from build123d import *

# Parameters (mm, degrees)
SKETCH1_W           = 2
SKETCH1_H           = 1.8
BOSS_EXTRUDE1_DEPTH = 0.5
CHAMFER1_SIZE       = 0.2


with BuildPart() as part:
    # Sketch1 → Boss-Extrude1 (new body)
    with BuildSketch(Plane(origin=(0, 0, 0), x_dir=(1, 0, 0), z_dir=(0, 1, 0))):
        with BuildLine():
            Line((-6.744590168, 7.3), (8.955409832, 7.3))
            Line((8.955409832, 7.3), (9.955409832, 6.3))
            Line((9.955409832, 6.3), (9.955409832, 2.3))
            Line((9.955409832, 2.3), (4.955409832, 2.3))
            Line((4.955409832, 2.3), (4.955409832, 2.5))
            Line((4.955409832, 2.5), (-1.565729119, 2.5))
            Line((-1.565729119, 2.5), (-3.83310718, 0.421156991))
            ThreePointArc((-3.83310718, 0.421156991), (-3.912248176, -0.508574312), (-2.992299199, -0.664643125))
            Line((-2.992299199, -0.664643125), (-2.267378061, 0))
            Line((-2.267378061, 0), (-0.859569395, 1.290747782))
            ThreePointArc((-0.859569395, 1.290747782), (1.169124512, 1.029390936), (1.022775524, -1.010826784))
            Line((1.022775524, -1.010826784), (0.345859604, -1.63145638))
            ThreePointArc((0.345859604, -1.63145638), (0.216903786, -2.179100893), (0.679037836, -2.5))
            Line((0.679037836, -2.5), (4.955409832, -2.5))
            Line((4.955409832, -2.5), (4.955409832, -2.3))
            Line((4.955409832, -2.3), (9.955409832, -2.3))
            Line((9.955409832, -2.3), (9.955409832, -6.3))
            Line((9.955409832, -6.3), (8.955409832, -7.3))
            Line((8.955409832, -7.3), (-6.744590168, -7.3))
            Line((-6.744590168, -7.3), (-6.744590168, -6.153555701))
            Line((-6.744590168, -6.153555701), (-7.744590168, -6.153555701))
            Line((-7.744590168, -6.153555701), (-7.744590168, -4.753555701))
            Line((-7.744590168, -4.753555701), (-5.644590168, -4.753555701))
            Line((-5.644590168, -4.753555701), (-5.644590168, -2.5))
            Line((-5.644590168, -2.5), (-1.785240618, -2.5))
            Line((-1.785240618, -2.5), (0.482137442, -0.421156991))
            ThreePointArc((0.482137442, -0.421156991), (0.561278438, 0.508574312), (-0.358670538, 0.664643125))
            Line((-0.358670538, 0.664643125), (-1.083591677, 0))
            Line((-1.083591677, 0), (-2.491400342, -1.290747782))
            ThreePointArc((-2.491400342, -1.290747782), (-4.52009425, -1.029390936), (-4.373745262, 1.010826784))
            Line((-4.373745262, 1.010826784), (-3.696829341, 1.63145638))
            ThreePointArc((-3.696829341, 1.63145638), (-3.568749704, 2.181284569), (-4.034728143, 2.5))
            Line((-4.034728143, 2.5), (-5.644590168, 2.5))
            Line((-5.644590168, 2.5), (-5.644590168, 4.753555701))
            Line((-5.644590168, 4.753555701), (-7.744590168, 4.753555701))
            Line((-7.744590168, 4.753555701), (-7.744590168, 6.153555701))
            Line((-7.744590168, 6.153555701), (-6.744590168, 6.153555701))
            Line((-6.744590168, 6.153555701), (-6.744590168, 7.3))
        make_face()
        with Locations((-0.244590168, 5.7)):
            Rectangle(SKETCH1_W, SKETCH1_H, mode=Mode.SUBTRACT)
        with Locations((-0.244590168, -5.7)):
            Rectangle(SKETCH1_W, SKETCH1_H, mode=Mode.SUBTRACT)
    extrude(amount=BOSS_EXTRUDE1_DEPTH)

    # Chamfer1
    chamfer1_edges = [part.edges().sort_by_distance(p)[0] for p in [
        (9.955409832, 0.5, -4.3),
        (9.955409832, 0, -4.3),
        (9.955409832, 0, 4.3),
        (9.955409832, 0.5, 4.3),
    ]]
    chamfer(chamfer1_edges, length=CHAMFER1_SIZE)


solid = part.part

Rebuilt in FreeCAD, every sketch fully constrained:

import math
import FreeCAD as App
import Part
import Sketcher
from FreeCAD import Vector
Q = App.Units.Quantity


def edges_at(feature, points):
    """Names of the edges that pass closest to the given points."""
    edges = feature.Shape.Edges
    near = lambda p: min(range(len(edges)), key=lambda i: edges[i].distToShape(Part.Vertex(*p))[0])
    return sorted({f"Edge{near(p) + 1}" for p in points})


def add_polygon(sketch, points):
    """Adds a closed chain of lines whose ends are joined by coincident constraints."""
    first, n = sketch.GeometryCount, len(points)
    for a, b in zip(points, points[1:] + points[:1]):
        sketch.addGeometry(Part.LineSegment(App.Vector(*a, 0), App.Vector(*b, 0)), False)
    for i in range(n):
        sketch.addConstraint(Sketcher.Constraint("Coincident", first + i, 2, first + (i + 1) % n, 1))

doc = App.newDocument("Part")
body = doc.addObject("PartDesign::Body", "Body")

# Sketch on XZ plane
sketch1 = body.newObject("Sketcher::SketchObject", "Sketch")
sketch1.AttachmentSupport = (doc.getObject("XZ_Plane"), [""])
sketch1.MapMode = "FlatFace"
sketch1.addGeometry(Part.LineSegment(Vector(8.96, -7.3, 0), Vector(-6.74, -7.3, 0)), False)  # 0
sketch1.addGeometry(Part.LineSegment(Vector(-6.74, -7.3, 0), Vector(-6.74, -6.15, 0)), False)  # 1
sketch1.addGeometry(Part.LineSegment(Vector(-6.74, -6.15, 0), Vector(-7.74, -6.15, 0)), False)  # 2
sketch1.addGeometry(Part.LineSegment(Vector(-7.74, -6.15, 0), Vector(-7.74, -4.75, 0)), False)  # 3
sketch1.addGeometry(Part.LineSegment(Vector(-7.74, -4.75, 0), Vector(-5.64, -4.75, 0)), False)  # 4
sketch1.addGeometry(Part.LineSegment(Vector(-5.64, -4.75, 0), Vector(-5.64, -2.5, 0)), False)  # 5
sketch1.addGeometry(Part.LineSegment(Vector(-5.64, -2.5, 0), Vector(-4.03, -2.5, 0)), False)  # 6
sketch1.addGeometry(Part.ArcOfCircle(Part.Circle(Vector(-4.03, -2, 0), Vector(0, 0, 1), 0.5), math.radians(-90), math.radians(47)), False)  # 7
sketch1.addGeometry(Part.LineSegment(Vector(-3.7, -1.63, 0), Vector(-4.37, -1.01, 0)), False)  # 8
sketch1.addGeometry(Part.ArcOfCircle(Part.Circle(Vector(-3.37, 0.09, 0), Vector(0, 0, 1), 1.49), math.radians(54), math.radians(227)), False)  # 9
sketch1.addGeometry(Part.LineSegment(Vector(-2.49, 1.29, 0), Vector(-1.08, 0, 0)), False)  # 10
sketch1.addGeometry(Part.LineSegment(Vector(-1.08, 0, 0), Vector(-0.36, -0.66, 0)), False)  # 11
sketch1.addGeometry(Part.ArcOfCircle(Part.Circle(Vector(0.02, -0.09, 0), Vector(0, 0, 1), 0.69), math.radians(-123), math.radians(47)), False)  # 12
sketch1.addGeometry(Part.LineSegment(Vector(0.48, 0.42, 0), Vector(-1.79, 2.5, 0)), False)  # 13
sketch1.addGeometry(Part.LineSegment(Vector(-1.79, 2.5, 0), Vector(-5.64, 2.5, 0)), False)  # 14
sketch1.addGeometry(Part.LineSegment(Vector(-5.64, 2.5, 0), Vector(-5.64, 4.75, 0)), False)  # 15
sketch1.addGeometry(Part.LineSegment(Vector(-5.64, 4.75, 0), Vector(-7.74, 4.75, 0)), False)  # 16
sketch1.addGeometry(Part.LineSegment(Vector(-7.74, 4.75, 0), Vector(-7.74, 6.15, 0)), False)  # 17
sketch1.addGeometry(Part.LineSegment(Vector(-7.74, 6.15, 0), Vector(-6.74, 6.15, 0)), False)  # 18
sketch1.addGeometry(Part.LineSegment(Vector(-6.74, 6.15, 0), Vector(-6.74, 7.3, 0)), False)  # 19
sketch1.addGeometry(Part.LineSegment(Vector(-6.74, 7.3, 0), Vector(8.96, 7.3, 0)), False)  # 20
sketch1.addGeometry(Part.LineSegment(Vector(8.96, 7.3, 0), Vector(9.96, 6.3, 0)), False)  # 21
sketch1.addGeometry(Part.LineSegment(Vector(9.96, 6.3, 0), Vector(9.96, 2.3, 0)), False)  # 22
sketch1.addGeometry(Part.LineSegment(Vector(9.96, 2.3, 0), Vector(4.96, 2.3, 0)), False)  # 23
sketch1.addGeometry(Part.LineSegment(Vector(4.96, 2.3, 0), Vector(4.96, 2.5, 0)), False)  # 24
sketch1.addGeometry(Part.LineSegment(Vector(4.96, 2.5, 0), Vector(0.68, 2.5, 0)), False)  # 25
sketch1.addGeometry(Part.ArcOfCircle(Part.Circle(Vector(0.68, 2, 0), Vector(0, 0, 1), 0.5), math.radians(91), math.radians(227)), False)  # 26
sketch1.addGeometry(Part.LineSegment(Vector(0.35, 1.63, 0), Vector(1.02, 1.01, 0)), False)  # 27
sketch1.addGeometry(Part.ArcOfCircle(Part.Circle(Vector(0.02, -0.09, 0), Vector(0, 0, 1), 1.49), math.radians(-126), math.radians(47)), False)  # 28
sketch1.addGeometry(Part.LineSegment(Vector(-0.86, -1.29, 0), Vector(-2.27, 0, 0)), False)  # 29
sketch1.addGeometry(Part.LineSegment(Vector(-2.27, 0, 0), Vector(-2.99, 0.66, 0)), False)  # 30
sketch1.addGeometry(Part.ArcOfCircle(Part.Circle(Vector(-3.37, 0.09, 0), Vector(0, 0, 1), 0.69), math.radians(57), math.radians(227)), False)  # 31
sketch1.addGeometry(Part.LineSegment(Vector(-3.83, -0.42, 0), Vector(-1.57, -2.5, 0)), False)  # 32
sketch1.addGeometry(Part.LineSegment(Vector(-1.57, -2.5, 0), Vector(4.96, -2.5, 0)), False)  # 33
sketch1.addGeometry(Part.LineSegment(Vector(4.96, -2.5, 0), Vector(4.96, -2.3, 0)), False)  # 34
sketch1.addGeometry(Part.LineSegment(Vector(4.96, -2.3, 0), Vector(9.96, -2.3, 0)), False)  # 35
sketch1.addGeometry(Part.LineSegment(Vector(9.96, -2.3, 0), Vector(9.96, -6.3, 0)), False)  # 36
sketch1.addGeometry(Part.LineSegment(Vector(9.96, -6.3, 0), Vector(8.96, -7.3, 0)), False)  # 37
add_polygon(sketch1, [(-1.24, 6.6), (-1.24, 4.8), (0.76, 4.8), (0.76, 6.6)])  # lines 38-41
add_polygon(sketch1, [(-1.24, -4.8), (-1.24, -6.6), (0.76, -6.6), (0.76, -4.8)])  # lines 42-45
sketch1.addConstraint(Sketcher.Constraint("Coincident", 0, 2, 1, 1))
sketch1.addConstraint(Sketcher.Constraint("Coincident", 1, 2, 2, 1))
sketch1.addConstraint(Sketcher.Constraint("Coincident", 2, 2, 3, 1))
sketch1.addConstraint(Sketcher.Constraint("Coincident", 3, 2, 4, 1))
sketch1.addConstraint(Sketcher.Constraint("Coincident", 4, 2, 5, 1))
sketch1.addConstraint(Sketcher.Constraint("Coincident", 5, 2, 6, 1))
sketch1.addConstraint(Sketcher.Constraint("Tangent", 6, 2, 7, 1))
sketch1.addConstraint(Sketcher.Constraint("Tangent", 7, 2, 8, 1))
sketch1.addConstraint(Sketcher.Constraint("Tangent", 8, 2, 9, 2))
sketch1.addConstraint(Sketcher.Constraint("Coincident", 9, 1, 10, 1))
sketch1.addConstraint(Sketcher.Constraint("Coincident", 10, 2, 11, 1))
sketch1.addConstraint(Sketcher.Constraint("Coincident", 11, 2, 12, 1))
sketch1.addConstraint(Sketcher.Constraint("Tangent", 12, 2, 13, 1))
sketch1.addConstraint(Sketcher.Constraint("Coincident", 13, 2, 14, 1))
sketch1.addConstraint(Sketcher.Constraint("Coincident", 14, 2, 15, 1))
sketch1.addConstraint(Sketcher.Constraint("Coincident", 15, 2, 16, 1))
sketch1.addConstraint(Sketcher.Constraint("Coincident", 16, 2, 17, 1))
sketch1.addConstraint(Sketcher.Constraint("Coincident", 17, 2, 18, 1))
sketch1.addConstraint(Sketcher.Constraint("Coincident", 18, 2, 19, 1))
sketch1.addConstraint(Sketcher.Constraint("Coincident", 19, 2, 20, 1))
sketch1.addConstraint(Sketcher.Constraint("Coincident", 20, 2, 21, 1))
sketch1.addConstraint(Sketcher.Constraint("Coincident", 21, 2, 22, 1))
sketch1.addConstraint(Sketcher.Constraint("Coincident", 22, 2, 23, 1))
sketch1.addConstraint(Sketcher.Constraint("Coincident", 23, 2, 24, 1))
sketch1.addConstraint(Sketcher.Constraint("Coincident", 24, 2, 25, 1))
sketch1.addConstraint(Sketcher.Constraint("Coincident", 25, 2, 26, 1))
sketch1.addConstraint(Sketcher.Constraint("Coincident", 26, 2, 27, 1))
sketch1.addConstraint(Sketcher.Constraint("Tangent", 27, 2, 28, 2))
sketch1.addConstraint(Sketcher.Constraint("Coincident", 28, 1, 29, 1))
sketch1.addConstraint(Sketcher.Constraint("Coincident", 29, 2, 30, 1))
sketch1.addConstraint(Sketcher.Constraint("Coincident", 30, 2, 31, 1))
sketch1.addConstraint(Sketcher.Constraint("Tangent", 31, 2, 32, 1))
sketch1.addConstraint(Sketcher.Constraint("Coincident", 32, 2, 33, 1))
sketch1.addConstraint(Sketcher.Constraint("Coincident", 33, 2, 34, 1))
sketch1.addConstraint(Sketcher.Constraint("Coincident", 34, 2, 35, 1))
sketch1.addConstraint(Sketcher.Constraint("Coincident", 35, 2, 36, 1))
sketch1.addConstraint(Sketcher.Constraint("Coincident", 36, 2, 37, 1))
sketch1.addConstraint(Sketcher.Constraint("Coincident", 37, 2, 0, 1))
sketch1.addConstraint(Sketcher.Constraint("Horizontal", 0))
sketch1.addConstraint(Sketcher.Constraint("Vertical", 1))
sketch1.addConstraint(Sketcher.Constraint("Horizontal", 2))
sketch1.addConstraint(Sketcher.Constraint("Vertical", 3))
sketch1.addConstraint(Sketcher.Constraint("Horizontal", 4))
sketch1.addConstraint(Sketcher.Constraint("Vertical", 5))
sketch1.addConstraint(Sketcher.Constraint("Horizontal", 6))
sketch1.addConstraint(Sketcher.Constraint("Horizontal", 14))
sketch1.addConstraint(Sketcher.Constraint("Vertical", 15))
sketch1.addConstraint(Sketcher.Constraint("Horizontal", 16))
sketch1.addConstraint(Sketcher.Constraint("Vertical", 17))
sketch1.addConstraint(Sketcher.Constraint("Horizontal", 18))
sketch1.addConstraint(Sketcher.Constraint("Vertical", 19))
sketch1.addConstraint(Sketcher.Constraint("Horizontal", 20))
sketch1.addConstraint(Sketcher.Constraint("Vertical", 22))
sketch1.addConstraint(Sketcher.Constraint("Horizontal", 23))
sketch1.addConstraint(Sketcher.Constraint("Vertical", 24))
sketch1.addConstraint(Sketcher.Constraint("Horizontal", 25))
sketch1.addConstraint(Sketcher.Constraint("Horizontal", 33))
sketch1.addConstraint(Sketcher.Constraint("Vertical", 34))
sketch1.addConstraint(Sketcher.Constraint("Horizontal", 35))
sketch1.addConstraint(Sketcher.Constraint("Vertical", 36))
sketch1.addConstraint(Sketcher.Constraint("Vertical", 38))
sketch1.addConstraint(Sketcher.Constraint("Horizontal", 39))
sketch1.addConstraint(Sketcher.Constraint("Vertical", 40))
sketch1.addConstraint(Sketcher.Constraint("Horizontal", 41))
sketch1.addConstraint(Sketcher.Constraint("Vertical", 42))
sketch1.addConstraint(Sketcher.Constraint("Horizontal", 43))
sketch1.addConstraint(Sketcher.Constraint("Vertical", 44))
sketch1.addConstraint(Sketcher.Constraint("Horizontal", 45))
sketch1.addConstraint(Sketcher.Constraint("Coincident", 28, 3, 12, 3))
sketch1.addConstraint(Sketcher.Constraint("Coincident", 31, 3, 9, 3))
sketch1.addConstraint(Sketcher.Constraint("Equal", 7, 26))
sketch1.addConstraint(Sketcher.Constraint("Equal", 9, 28))
sketch1.addConstraint(Sketcher.Constraint("Equal", 12, 31))
sketch1.addConstraint(Sketcher.Constraint("Symmetric", 5, 2, 14, 2, -1))
sketch1.addConstraint(Sketcher.Constraint("Symmetric", 3, 2, 16, 2, -1))
sketch1.addConstraint(Sketcher.Constraint("Symmetric", 1, 2, 18, 2, -1))
sketch1.addConstraint(Sketcher.Constraint("Symmetric", 24, 2, 33, 2, -1))
sketch1.addConstraint(Sketcher.Constraint("Symmetric", 22, 2, 35, 2, -1))
sketch1.addConstraint(Sketcher.Constraint("Symmetric", 20, 2, 37, 2, -1))
sketch1.addConstraint(Sketcher.Constraint("Symmetric", 41, 2, 42, 2, -1))
sketch1.addConstraint(Sketcher.Constraint("Symmetric", 39, 2, 44, 2, -1))
sketch1.addConstraint(Sketcher.Constraint("PointOnObject", 10, 2, -1))
sketch1.addConstraint(Sketcher.Constraint("PointOnObject", 29, 2, -1))
sketch1.addConstraint(Sketcher.Constraint("Parallel", 8, 10))
sketch1.addConstraint(Sketcher.Constraint("Parallel", 10, 11))
sketch1.addConstraint(Sketcher.Constraint("Parallel", 11, 13))
sketch1.addConstraint(Sketcher.Constraint("Parallel", 13, 27))
sketch1.addConstraint(Sketcher.Constraint("Parallel", 27, 29))
sketch1.addConstraint(Sketcher.Constraint("Parallel", 29, 30))
sketch1.addConstraint(Sketcher.Constraint("Parallel", 30, 32))
sketch1.addConstraint(Sketcher.Constraint("Perpendicular", 21, 37))
sketch1.addConstraint(Sketcher.Constraint("Horizontal", 14, 2, 24, 2))
sketch1.addConstraint(Sketcher.Constraint("Equal", 22, 36))
sketch1.addConstraint(Sketcher.Constraint("Equal", 8, 27))
sketch1.addConstraint(Sketcher.Constraint("Equal", 10, 29))
sketch1.addConstraint(Sketcher.Constraint("Equal", 11, 30))
sketch1.addConstraint(Sketcher.Constraint("Radius", 7, Q("0.5 mm")))
sketch1.addConstraint(Sketcher.Constraint("DistanceX", 2, 2, 2, 1, Q("1 mm")))
sketch1.addConstraint(Sketcher.Constraint("DistanceX", 23, 2, 23, 1, Q("5 mm")))
sketch1.addConstraint(Sketcher.Constraint("DistanceX", 39, 1, 39, 2, Q("2 mm")))
sketch1.addConstraint(Sketcher.Constraint("DistanceY", 22, 2, 22, 1, Q("4 mm")))
sketch1.addConstraint(Sketcher.Constraint("DistanceX", 0, 2, 0, 1, Q("15.7 mm")))
sketch1.addConstraint(Sketcher.Constraint("DistanceX", 4, 1, 4, 2, Q("2.1 mm")))
sketch1.addConstraint(Sketcher.Constraint("DistanceY", 3, 1, 3, 2, Q("1.4 mm")))
sketch1.addConstraint(Sketcher.Constraint("DistanceY", 24, 1, 24, 2, Q("0.2 mm")))
sketch1.addConstraint(Sketcher.Constraint("DistanceY", 38, 2, 38, 1, Q("1.8 mm")))
sketch1.addConstraint(Sketcher.Constraint("DistanceY", 7, 3, -1, 1, Q("2 mm")))
sketch1.addConstraint(Sketcher.Constraint("DistanceX", 20, 2, 21, 2, Q("1 mm")))
sketch1.addConstraint(Sketcher.Constraint("DistanceY", -1, 1, 38, 2, Q("4.8 mm")))
sketch1.addConstraint(Sketcher.Constraint("DistanceX", 4, 2, 42, 2, Q("4.4 mm")))
sketch1.addConstraint(Sketcher.Constraint("Radius", 9, Q("1.489024 mm")))
sketch1.addConstraint(Sketcher.Constraint("Radius", 12, Q("0.689024 mm")))
sketch1.addConstraint(Sketcher.Constraint("DistanceX", 6, 2, 32, 2, Q("2.468999 mm")))
sketch1.addConstraint(Sketcher.Constraint("DistanceX", 14, 2, 14, 1, Q("3.85935 mm")))
sketch1.addConstraint(Sketcher.Constraint("DistanceX", 25, 2, 25, 1, Q("4.276372 mm")))
sketch1.addConstraint(Sketcher.Constraint("DistanceX", 33, 1, 33, 2, Q("6.521139 mm")))
sketch1.addConstraint(Sketcher.Constraint("DistanceX", 9, 1, -1, 1, Q("2.4914 mm")))
sketch1.addConstraint(Sketcher.Constraint("DistanceX", 30, 2, -1, 1, Q("2.992299 mm")))
sketch1.addConstraint(Sketcher.Constraint("DistanceX", 9, 3, 26, 3, Q("4.051201 mm")))
sketch1.addConstraint(Sketcher.Constraint("DistanceY", 1, 1, 1, 2, Q("1.146444 mm")))
pad1 = body.newObject("PartDesign::Pad", "Pad")
pad1.Profile = sketch1
pad1.Length = 0.5
pad1.Reversed = True
doc.recompute()

chamfer = body.newObject("PartDesign::Chamfer", "Chamfer")
chamfer.Base = (pad1, edges_at(pad1, [
    (9.955, 0.5, -4.3),
    (9.955, 0, -4.3),
    (9.955, 0, 4.3),
    (9.955, 0.5, 4.3),
]))
chamfer.Size = 0.2

doc.recompute()
